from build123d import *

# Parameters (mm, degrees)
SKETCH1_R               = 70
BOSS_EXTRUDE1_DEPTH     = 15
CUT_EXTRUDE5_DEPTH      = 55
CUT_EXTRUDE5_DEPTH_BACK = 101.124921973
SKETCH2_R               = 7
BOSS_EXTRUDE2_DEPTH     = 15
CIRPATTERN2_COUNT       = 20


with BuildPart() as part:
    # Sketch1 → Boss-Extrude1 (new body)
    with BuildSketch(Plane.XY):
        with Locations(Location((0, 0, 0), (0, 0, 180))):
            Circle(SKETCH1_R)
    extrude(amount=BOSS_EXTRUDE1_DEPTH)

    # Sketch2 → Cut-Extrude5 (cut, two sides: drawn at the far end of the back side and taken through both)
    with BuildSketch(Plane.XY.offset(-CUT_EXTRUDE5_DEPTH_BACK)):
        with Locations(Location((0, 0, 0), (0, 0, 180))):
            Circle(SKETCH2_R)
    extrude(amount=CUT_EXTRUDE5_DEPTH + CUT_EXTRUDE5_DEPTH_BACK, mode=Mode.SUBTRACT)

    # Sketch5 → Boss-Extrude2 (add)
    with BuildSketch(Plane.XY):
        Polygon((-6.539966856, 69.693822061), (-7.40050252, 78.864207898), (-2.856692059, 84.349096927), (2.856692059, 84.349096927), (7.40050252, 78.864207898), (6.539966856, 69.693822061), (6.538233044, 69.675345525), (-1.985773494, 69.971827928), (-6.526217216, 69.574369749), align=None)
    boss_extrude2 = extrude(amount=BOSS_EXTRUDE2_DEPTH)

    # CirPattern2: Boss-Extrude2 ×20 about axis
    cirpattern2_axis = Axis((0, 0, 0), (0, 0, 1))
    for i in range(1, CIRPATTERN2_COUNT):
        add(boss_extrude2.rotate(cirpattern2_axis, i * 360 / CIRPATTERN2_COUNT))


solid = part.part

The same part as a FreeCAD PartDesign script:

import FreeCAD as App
import Part
import Sketcher
from FreeCAD import Vector
Q = App.Units.Quantity

doc = App.newDocument("Part")
body = doc.addObject("PartDesign::Body", "Body")

sketch1 = body.newObject("Sketcher::SketchObject", "Sketch")
sketch1.AttachmentSupport = (doc.getObject("XY_Plane"), [""])
sketch1.MapMode = "FlatFace"
sketch1.addGeometry(Part.Circle(Vector(0, 0, 0), Vector(0, 0, 1), 70), False)
sketch1.addConstraint([
    Sketcher.Constraint("Coincident", 0, 3, -1, 1),
    Sketcher.Constraint("Diameter", 0, Q("140 mm")),
])
pad1 = body.newObject("PartDesign::Pad", "Pad")
pad1.Profile = sketch1
pad1.Length = 15

sketch2 = body.newObject("Sketcher::SketchObject", "Sketch001")
sketch2.AttachmentSupport = (doc.getObject("XY_Plane"), [""])
sketch2.MapMode = "FlatFace"
sketch2.addGeometry(Part.Circle(Vector(0, 0, 0), Vector(0, 0, 1), 7), False)
sketch2.addConstraint([
    Sketcher.Constraint("Coincident", 0, 3, -1, 1),
    Sketcher.Constraint("Diameter", 0, Q("14 mm")),
])
pocket1 = body.newObject("PartDesign::Pocket", "Pocket")
pocket1.Profile = sketch2
pocket1.Type = "ThroughAll"
pocket1.Midplane = True

sketch3 = body.newObject("Sketcher::SketchObject", "Sketch002")
sketch3.AttachmentSupport = (doc.getObject("XY_Plane"), [""])
sketch3.MapMode = "FlatFace"
sketch3.addGeometry([
    Part.LineSegment(Vector(-7.401, 78.864, 0), Vector(-6.54, 69.694, 0)),
    Part.LineSegment(Vector(-6.54, 69.694, 0), Vector(-6.526, 69.574, 0)),
    Part.LineSegment(Vector(-6.526, 69.574, 0), Vector(-1.986, 69.972, 0)),
    Part.LineSegment(Vector(-1.986, 69.972, 0), Vector(6.538, 69.675, 0)),
    Part.LineSegment(Vector(6.538, 69.675, 0), Vector(6.54, 69.694, 0)),
    Part.LineSegment(Vector(6.54, 69.694, 0), Vector(7.401, 78.864, 0)),
    Part.LineSegment(Vector(7.401, 78.864, 0), Vector(2.857, 84.349, 0)),
    Part.LineSegment(Vector(2.857, 84.349, 0), Vector(-2.857, 84.349, 0)),
    Part.LineSegment(Vector(-2.857, 84.349, 0), Vector(-7.401, 78.864, 0)),
], False)
sketch3.addConstraint([
    Sketcher.Constraint("Coincident", 0, 2, 1, 1),
    Sketcher.Constraint("Coincident", 1, 2, 2, 1),
    Sketcher.Constraint("Coincident", 2, 2, 3, 1),
    Sketcher.Constraint("Coincident", 3, 2, 4, 1),
    Sketcher.Constraint("Coincident", 4, 2, 5, 1),
    Sketcher.Constraint("Coincident", 5, 2, 6, 1),
    Sketcher.Constraint("Coincident", 6, 2, 7, 1),
    Sketcher.Constraint("Coincident", 7, 2, 8, 1),
    Sketcher.Constraint("Coincident", 8, 2, 0, 1),
    Sketcher.Constraint("Horizontal", 7),
    Sketcher.Constraint("Symmetric", 0, 2, 4, 2, -2),
    Sketcher.Constraint("Symmetric", 5, 2, 8, 2, -2),
    Sketcher.Constraint("Parallel", 4, 5),
    Sketcher.Constraint("Equal", 6, 8),
    Sketcher.Constraint("DistanceX", 0, 2, 3, 2, Q("13.0782 mm")),
    Sketcher.Constraint("Distance", 1, Q("0.120241 mm")),
    Sketcher.Constraint("Distance", 3, Q("8.529161 mm")),
    Sketcher.Constraint("DistanceX", 7, 2, 7, 1, Q("5.713384 mm")),
    Sketcher.Constraint("DistanceY", -1, 1, 1, 2, Q("69.57437 mm")),
    Sketcher.Constraint("DistanceX", 0, 2, 1, 2, Q("0.01375 mm")),
    Sketcher.Constraint("DistanceY", 1, 2, 2, 2, Q("0.397458 mm")),
    Sketcher.Constraint("DistanceX", 2, 2, 4, 2, Q("8.52574 mm")),
    Sketcher.Constraint("DistanceX", 3, 2, 5, 2, Q("0.862269 mm")),
    Sketcher.Constraint("DistanceY", 2, 2, 5, 2, Q("8.89238 mm")),
    Sketcher.Constraint("DistanceY", 5, 2, 6, 2, Q("5.484889 mm")),
])
pad2 = body.newObject("PartDesign::Pad", "Pad001")
pad2.Profile = sketch3
pad2.Length = 15
doc.recompute()

polarpattern = body.newObject("PartDesign::PolarPattern", "PolarPattern")
polarpattern.Originals = [pad2]
polarpattern.Axis = (doc.getObject("Z_Axis"), [""])
polarpattern.Angle = 360
polarpattern.Occurrences = 20
body.Tip = polarpattern

doc.recompute()
